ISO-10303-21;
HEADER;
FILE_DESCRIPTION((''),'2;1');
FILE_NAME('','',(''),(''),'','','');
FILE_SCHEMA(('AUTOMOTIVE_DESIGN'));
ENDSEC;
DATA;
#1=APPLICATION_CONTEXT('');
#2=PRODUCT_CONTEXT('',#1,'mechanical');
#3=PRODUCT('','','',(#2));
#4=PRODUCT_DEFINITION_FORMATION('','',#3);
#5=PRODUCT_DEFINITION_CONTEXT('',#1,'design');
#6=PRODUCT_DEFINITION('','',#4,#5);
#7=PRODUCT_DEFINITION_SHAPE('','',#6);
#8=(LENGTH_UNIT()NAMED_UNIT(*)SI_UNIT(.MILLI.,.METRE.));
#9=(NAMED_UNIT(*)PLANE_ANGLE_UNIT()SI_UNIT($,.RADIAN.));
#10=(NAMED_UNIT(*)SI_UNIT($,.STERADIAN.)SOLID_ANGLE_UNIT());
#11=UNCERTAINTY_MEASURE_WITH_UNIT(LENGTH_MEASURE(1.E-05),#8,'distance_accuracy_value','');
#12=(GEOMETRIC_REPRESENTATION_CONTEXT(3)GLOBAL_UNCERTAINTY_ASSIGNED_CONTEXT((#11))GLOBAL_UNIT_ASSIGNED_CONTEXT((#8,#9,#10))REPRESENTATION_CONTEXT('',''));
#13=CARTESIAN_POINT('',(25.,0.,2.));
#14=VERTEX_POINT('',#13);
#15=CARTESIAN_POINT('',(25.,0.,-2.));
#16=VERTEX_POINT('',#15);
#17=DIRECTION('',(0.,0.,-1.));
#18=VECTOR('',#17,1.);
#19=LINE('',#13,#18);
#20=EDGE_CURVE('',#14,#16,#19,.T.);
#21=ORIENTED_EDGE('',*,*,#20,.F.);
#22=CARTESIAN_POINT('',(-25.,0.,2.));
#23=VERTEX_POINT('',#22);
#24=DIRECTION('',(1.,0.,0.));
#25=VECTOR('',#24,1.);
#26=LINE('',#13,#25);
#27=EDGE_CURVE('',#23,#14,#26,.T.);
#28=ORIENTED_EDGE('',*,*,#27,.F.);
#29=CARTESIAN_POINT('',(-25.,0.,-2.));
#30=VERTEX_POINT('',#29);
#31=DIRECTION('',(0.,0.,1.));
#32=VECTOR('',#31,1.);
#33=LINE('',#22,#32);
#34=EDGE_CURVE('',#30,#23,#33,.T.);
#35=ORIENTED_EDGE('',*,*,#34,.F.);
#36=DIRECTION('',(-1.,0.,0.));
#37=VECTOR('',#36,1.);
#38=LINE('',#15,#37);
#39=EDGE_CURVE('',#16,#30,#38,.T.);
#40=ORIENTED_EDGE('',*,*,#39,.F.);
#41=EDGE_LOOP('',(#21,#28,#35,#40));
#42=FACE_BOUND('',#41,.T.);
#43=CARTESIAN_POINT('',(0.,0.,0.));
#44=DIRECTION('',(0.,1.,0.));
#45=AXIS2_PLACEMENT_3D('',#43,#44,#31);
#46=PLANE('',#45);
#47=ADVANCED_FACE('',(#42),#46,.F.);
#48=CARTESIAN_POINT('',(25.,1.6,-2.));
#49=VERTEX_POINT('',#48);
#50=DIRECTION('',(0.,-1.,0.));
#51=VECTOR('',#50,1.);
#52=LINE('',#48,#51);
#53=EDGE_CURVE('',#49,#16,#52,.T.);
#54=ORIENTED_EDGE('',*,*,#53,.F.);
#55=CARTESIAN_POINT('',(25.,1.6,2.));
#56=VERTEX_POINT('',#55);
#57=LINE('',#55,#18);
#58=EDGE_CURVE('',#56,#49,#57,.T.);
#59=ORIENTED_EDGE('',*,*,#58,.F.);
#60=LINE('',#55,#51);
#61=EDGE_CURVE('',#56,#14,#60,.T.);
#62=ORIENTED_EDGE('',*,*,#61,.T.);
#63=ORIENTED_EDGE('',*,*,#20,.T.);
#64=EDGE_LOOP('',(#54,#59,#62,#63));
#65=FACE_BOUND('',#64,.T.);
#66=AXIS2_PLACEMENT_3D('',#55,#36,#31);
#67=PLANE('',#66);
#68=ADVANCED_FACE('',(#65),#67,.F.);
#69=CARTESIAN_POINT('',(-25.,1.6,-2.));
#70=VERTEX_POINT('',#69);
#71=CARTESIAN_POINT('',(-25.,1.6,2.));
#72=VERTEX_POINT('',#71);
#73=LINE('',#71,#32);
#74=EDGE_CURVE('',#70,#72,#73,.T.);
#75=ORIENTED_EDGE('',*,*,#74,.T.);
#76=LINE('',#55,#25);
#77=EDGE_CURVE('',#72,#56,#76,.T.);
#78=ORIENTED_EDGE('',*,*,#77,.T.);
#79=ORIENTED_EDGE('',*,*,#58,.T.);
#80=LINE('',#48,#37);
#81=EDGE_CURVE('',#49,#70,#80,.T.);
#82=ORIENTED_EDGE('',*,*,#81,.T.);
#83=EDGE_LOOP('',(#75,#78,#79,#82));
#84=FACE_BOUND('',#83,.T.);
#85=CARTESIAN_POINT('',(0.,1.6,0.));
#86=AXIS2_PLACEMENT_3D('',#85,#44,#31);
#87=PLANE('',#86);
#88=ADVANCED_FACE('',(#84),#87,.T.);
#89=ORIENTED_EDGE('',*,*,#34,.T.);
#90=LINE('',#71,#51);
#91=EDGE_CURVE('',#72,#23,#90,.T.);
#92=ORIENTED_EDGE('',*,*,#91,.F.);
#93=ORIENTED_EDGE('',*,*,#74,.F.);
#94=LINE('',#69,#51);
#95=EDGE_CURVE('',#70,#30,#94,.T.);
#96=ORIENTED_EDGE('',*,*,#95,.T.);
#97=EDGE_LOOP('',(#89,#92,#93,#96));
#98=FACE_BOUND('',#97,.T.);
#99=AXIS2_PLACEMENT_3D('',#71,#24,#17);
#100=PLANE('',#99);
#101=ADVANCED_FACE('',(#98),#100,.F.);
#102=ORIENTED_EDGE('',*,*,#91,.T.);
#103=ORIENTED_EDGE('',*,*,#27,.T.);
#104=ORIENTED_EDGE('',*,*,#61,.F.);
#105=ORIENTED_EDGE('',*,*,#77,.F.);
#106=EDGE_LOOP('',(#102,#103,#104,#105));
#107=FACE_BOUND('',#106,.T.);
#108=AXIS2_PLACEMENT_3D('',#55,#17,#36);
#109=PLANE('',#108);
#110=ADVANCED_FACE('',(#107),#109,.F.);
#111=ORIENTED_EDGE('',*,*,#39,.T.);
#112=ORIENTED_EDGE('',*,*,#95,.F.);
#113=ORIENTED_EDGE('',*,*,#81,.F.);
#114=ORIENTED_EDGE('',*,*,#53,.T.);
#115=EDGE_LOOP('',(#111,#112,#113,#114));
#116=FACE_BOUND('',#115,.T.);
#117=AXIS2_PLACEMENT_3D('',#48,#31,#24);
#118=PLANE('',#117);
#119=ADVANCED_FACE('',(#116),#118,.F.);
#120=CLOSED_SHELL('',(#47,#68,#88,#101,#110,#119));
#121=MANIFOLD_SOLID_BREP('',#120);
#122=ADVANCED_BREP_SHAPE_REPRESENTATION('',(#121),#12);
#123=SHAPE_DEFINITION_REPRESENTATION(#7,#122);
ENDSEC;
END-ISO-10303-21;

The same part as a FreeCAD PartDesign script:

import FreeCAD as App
import Part
import Sketcher

doc = App.newDocument("Part")
params = doc.addObject("Spreadsheet::Sheet", "Params")
for row, (alias, value) in enumerate([
    ("sketch1_width", "50 mm"),
    ("sketch1_height", "4 mm"),
    ("pad1_length", "1.6 mm"),
], start=1):
    params.set(f"A{row}", alias)
    params.set(f"B{row}", "=" + value)
    params.setAlias(f"B{row}", alias)

body = doc.addObject("PartDesign::Body", "Body")

sketch1 = body.newObject("Sketcher::SketchObject", "Sketch")
sketch1.AttachmentSupport = (doc.getObject("XZ_Plane"), [""])
sketch1.MapMode = "FlatFace"
sketch1.addGeometry(Part.LineSegment(App.Vector(-25, -2, 0), App.Vector(-25, 2, 0)), False)
sketch1.addGeometry(Part.LineSegment(App.Vector(-25, 2, 0), App.Vector(25, 2, 0)), False)
sketch1.addGeometry(Part.LineSegment(App.Vector(25, 2, 0), App.Vector(25, -2, 0)), False)
sketch1.addGeometry(Part.LineSegment(App.Vector(25, -2, 0), App.Vector(-25, -2, 0)), False)
sketch1.addConstraint(Sketcher.Constraint("Coincident", 0, 2, 1, 1))
sketch1.addConstraint(Sketcher.Constraint("Coincident", 1, 2, 2, 1))
sketch1.addConstraint(Sketcher.Constraint("Coincident", 2, 2, 3, 1))
sketch1.addConstraint(Sketcher.Constraint("Coincident", 3, 2, 0, 1))
sketch1.addConstraint(Sketcher.Constraint("Vertical", 0))
sketch1.addConstraint(Sketcher.Constraint("Horizontal", 1))
sketch1.addConstraint(Sketcher.Constraint("Vertical", 2))
sketch1.addConstraint(Sketcher.Constraint("Horizontal", 3))
sketch1.addConstraint(Sketcher.Constraint("Symmetric", 0, 2, 2, 2, -1, 1))
sketch1.addConstraint(Sketcher.Constraint("DistanceX", 1, 1, 1, 2, 50.0))
sketch1.addConstraint(Sketcher.Constraint("DistanceY", 0, 1, 0, 2, 4.0))
sketch1.setExpression("Constraints[9]", "Params.sketch1_width")
sketch1.setExpression("Constraints[10]", "Params.sketch1_height")
pad1 = body.newObject("PartDesign::Pad", "Pad")
pad1.Profile = sketch1
pad1.setExpression("Length", "Params.pad1_length")
pad1.Reversed = True

doc.recompute()
